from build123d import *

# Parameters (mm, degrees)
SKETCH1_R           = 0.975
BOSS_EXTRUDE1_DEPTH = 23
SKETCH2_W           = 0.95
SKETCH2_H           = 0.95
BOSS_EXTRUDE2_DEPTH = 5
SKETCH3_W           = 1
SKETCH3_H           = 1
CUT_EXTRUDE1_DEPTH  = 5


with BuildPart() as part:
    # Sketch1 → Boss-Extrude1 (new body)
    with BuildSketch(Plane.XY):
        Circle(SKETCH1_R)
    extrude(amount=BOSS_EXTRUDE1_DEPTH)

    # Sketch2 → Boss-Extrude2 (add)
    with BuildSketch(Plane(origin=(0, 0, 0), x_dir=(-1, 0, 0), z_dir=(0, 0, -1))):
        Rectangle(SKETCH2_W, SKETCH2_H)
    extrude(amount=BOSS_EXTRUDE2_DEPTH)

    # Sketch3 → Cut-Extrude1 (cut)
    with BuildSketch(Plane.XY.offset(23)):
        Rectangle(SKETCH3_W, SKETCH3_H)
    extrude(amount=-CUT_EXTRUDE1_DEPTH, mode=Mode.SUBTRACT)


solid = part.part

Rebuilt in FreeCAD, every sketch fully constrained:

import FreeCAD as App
import Part
import Sketcher
from FreeCAD import Vector
Q = App.Units.Quantity

doc = App.newDocument("Part")
body = doc.addObject("PartDesign::Body", "Body")

# Sketch on XY plane
sketch1 = body.newObject("Sketcher::SketchObject", "Sketch")
sketch1.AttachmentSupport = (doc.getObject("XY_Plane"), [""])
sketch1.MapMode = "FlatFace"
sketch1.addGeometry(Part.Circle(Vector(0, 0, 0), Vector(0, 0, 1), 0.975), False)
sketch1.addConstraint(Sketcher.Constraint("Coincident", 0, 3, -1, 1))
sketch1.addConstraint(Sketcher.Constraint("Diameter", 0, Q("1.95 mm")))
pad1 = body.newObject("PartDesign::Pad", "Pad")
pad1.Profile = sketch1
pad1.Length = 23

# Sketch on XY plane
sketch2 = body.newObject("Sketcher::SketchObject", "Sketch001")
sketch2.AttachmentSupport = (doc.getObject("XY_Plane"), [""])
sketch2.MapMode = "FlatFace"
sketch2.addGeometry(Part.LineSegment(Vector(0.475, 0.475, 0), Vector(0.475, -0.475, 0)), False)
sketch2.addGeometry(Part.LineSegment(Vector(0.475, -0.475, 0), Vector(-0.475, -0.475, 0)), False)
sketch2.addGeometry(Part.LineSegment(Vector(-0.475, -0.475, 0), Vector(-0.475, 0.475, 0)), False)
sketch2.addGeometry(Part.LineSegment(Vector(-0.475, 0.475, 0), Vector(0.475, 0.475, 0)), False)
sketch2.addConstraint(Sketcher.Constraint("Coincident", 0, 2, 1, 1))
sketch2.addConstraint(Sketcher.Constraint("Coincident", 1, 2, 2, 1))
sketch2.addConstraint(Sketcher.Constraint("Coincident", 2, 2, 3, 1))
sketch2.addConstraint(Sketcher.Constraint("Coincident", 3, 2, 0, 1))
sketch2.addConstraint(Sketcher.Constraint("Vertical", 0))
sketch2.addConstraint(Sketcher.Constraint("Horizontal", 1))
sketch2.addConstraint(Sketcher.Constraint("Vertical", 2))
sketch2.addConstraint(Sketcher.Constraint("Horizontal", 3))
sketch2.addConstraint(Sketcher.Constraint("Symmetric", 0, 2, 2, 2, -1, 1))
sketch2.addConstraint(Sketcher.Constraint("Equal", 3, 0))
sketch2.addConstraint(Sketcher.Constraint("DistanceX", 1, 2, 1, 1, Q("0.95 mm")))
pad2 = body.newObject("PartDesign::Pad", "Pad001")
pad2.Profile = sketch2
pad2.Length = 5
pad2.Reversed = True

# Sketch on XY plane
sketch3 = body.newObject("Sketcher::SketchObject", "Sketch002")
sketch3.AttachmentSupport = (doc.getObject("XY_Plane"), [""])
sketch3.MapMode = "FlatFace"
sketch3.AttachmentOffset = App.Placement(Vector(0, 0, 23), App.Rotation())
sketch3.addGeometry(Part.LineSegment(Vector(-0.5, 0.5, 0), Vector(-0.5, -0.5, 0)), False)
sketch3.addGeometry(Part.LineSegment(Vector(-0.5, -0.5, 0), Vector(0.5, -0.5, 0)), False)
sketch3.addGeometry(Part.LineSegment(Vector(0.5, -0.5, 0), Vector(0.5, 0.5, 0)), False)
sketch3.addGeometry(Part.LineSegment(Vector(0.5, 0.5, 0), Vector(-0.5, 0.5, 0)), False)
sketch3.addConstraint(Sketcher.Constraint("Coincident", 0, 2, 1, 1))
sketch3.addConstraint(Sketcher.Constraint("Coincident", 1, 2, 2, 1))
sketch3.addConstraint(Sketcher.Constraint("Coincident", 2, 2, 3, 1))
sketch3.addConstraint(Sketcher.Constraint("Coincident", 3, 2, 0, 1))
sketch3.addConstraint(Sketcher.Constraint("Vertical", 0))
sketch3.addConstraint(Sketcher.Constraint("Horizontal", 1))
sketch3.addConstraint(Sketcher.Constraint("Vertical", 2))
sketch3.addConstraint(Sketcher.Constraint("Horizontal", 3))
sketch3.addConstraint(Sketcher.Constraint("Symmetric", 0, 2, 2, 2, -1, 1))
sketch3.addConstraint(Sketcher.Constraint("Equal", 3, 0))
sketch3.addConstraint(Sketcher.Constraint("DistanceX", 1, 1, 1, 2, Q("1 mm")))
pocket1 = body.newObject("PartDesign::Pocket", "Pocket")
pocket1.Profile = sketch3
pocket1.Length = 5

doc.recompute()
